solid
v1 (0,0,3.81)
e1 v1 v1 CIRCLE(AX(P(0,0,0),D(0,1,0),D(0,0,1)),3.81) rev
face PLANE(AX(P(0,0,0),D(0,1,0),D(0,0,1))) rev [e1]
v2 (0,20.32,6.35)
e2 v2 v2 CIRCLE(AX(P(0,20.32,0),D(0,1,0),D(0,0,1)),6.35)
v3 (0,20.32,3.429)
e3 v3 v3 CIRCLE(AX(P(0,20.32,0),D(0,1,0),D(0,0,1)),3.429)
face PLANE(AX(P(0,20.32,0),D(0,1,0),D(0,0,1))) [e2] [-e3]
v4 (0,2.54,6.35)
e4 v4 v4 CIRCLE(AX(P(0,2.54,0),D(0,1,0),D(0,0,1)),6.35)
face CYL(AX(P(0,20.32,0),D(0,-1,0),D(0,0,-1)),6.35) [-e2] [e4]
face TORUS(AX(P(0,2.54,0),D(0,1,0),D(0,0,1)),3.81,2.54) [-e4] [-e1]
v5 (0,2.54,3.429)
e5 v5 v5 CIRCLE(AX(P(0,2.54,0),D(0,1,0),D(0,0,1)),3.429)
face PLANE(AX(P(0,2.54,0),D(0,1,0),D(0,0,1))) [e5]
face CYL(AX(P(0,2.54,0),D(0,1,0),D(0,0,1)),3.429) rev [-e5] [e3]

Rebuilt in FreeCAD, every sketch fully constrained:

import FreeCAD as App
import Part
import Sketcher
Q = App.Units.Quantity


def edges_at(feature, points):
    """Names of the edges that pass closest to the given points."""
    edges = feature.Shape.Edges
    near = lambda p: min(range(len(edges)), key=lambda i: edges[i].distToShape(Part.Vertex(*p))[0])
    return sorted({f"Edge{near(p) + 1}" for p in points})

doc = App.newDocument("Part")
body = doc.addObject("PartDesign::Body", "Body")

# Sketch on XZ plane
sketch1 = body.newObject("Sketcher::SketchObject", "Sketch")
sketch1.AttachmentSupport = (doc.getObject("XZ_Plane"), [""])
sketch1.MapMode = "FlatFace"
sketch1.addGeometry(Part.Circle(App.Vector(0, 0, 0), App.Vector(0, 0, 1), 6), False)
sketch1.addConstraint(Sketcher.Constraint("Coincident", 0, 3, -1, 1))
sketch1.addConstraint(Sketcher.Constraint("Diameter", 0, Q("0.5 in")))
pad1 = body.newObject("PartDesign::Pad", "Pad")
pad1.Profile = sketch1
pad1.Length = Q("0.8 in")
pad1.Reversed = True

# Sketch on XZ plane
sketch2 = body.newObject("Sketcher::SketchObject", "Sketch001")
sketch2.AttachmentSupport = (doc.getObject("XZ_Plane"), [""])
sketch2.MapMode = "FlatFace"
sketch2.AttachmentOffset = App.Placement(App.Vector(0, 0, -0.8 * 25.4), App.Rotation())
sketch2.addGeometry(Part.Circle(App.Vector(0, 0, 0), App.Vector(0, 0, 1), 3.4), False)
sketch2.addConstraint(Sketcher.Constraint("Coincident", 0, 3, -1, 1))
sketch2.addConstraint(Sketcher.Constraint("Diameter", 0, Q("0.27 in")))
pocket1 = body.newObject("PartDesign::Pocket", "Pocket")
pocket1.Profile = sketch2
pocket1.Length = Q("0.7 in")
pocket1.Reversed = True
doc.recompute()

fillet = body.newObject("PartDesign::Fillet", "Fillet")
fillet.Base = (pocket1, edges_at(pocket1, [(0, 0, -6.35)]))
fillet.Radius = Q("0.1 in")

doc.recompute()
